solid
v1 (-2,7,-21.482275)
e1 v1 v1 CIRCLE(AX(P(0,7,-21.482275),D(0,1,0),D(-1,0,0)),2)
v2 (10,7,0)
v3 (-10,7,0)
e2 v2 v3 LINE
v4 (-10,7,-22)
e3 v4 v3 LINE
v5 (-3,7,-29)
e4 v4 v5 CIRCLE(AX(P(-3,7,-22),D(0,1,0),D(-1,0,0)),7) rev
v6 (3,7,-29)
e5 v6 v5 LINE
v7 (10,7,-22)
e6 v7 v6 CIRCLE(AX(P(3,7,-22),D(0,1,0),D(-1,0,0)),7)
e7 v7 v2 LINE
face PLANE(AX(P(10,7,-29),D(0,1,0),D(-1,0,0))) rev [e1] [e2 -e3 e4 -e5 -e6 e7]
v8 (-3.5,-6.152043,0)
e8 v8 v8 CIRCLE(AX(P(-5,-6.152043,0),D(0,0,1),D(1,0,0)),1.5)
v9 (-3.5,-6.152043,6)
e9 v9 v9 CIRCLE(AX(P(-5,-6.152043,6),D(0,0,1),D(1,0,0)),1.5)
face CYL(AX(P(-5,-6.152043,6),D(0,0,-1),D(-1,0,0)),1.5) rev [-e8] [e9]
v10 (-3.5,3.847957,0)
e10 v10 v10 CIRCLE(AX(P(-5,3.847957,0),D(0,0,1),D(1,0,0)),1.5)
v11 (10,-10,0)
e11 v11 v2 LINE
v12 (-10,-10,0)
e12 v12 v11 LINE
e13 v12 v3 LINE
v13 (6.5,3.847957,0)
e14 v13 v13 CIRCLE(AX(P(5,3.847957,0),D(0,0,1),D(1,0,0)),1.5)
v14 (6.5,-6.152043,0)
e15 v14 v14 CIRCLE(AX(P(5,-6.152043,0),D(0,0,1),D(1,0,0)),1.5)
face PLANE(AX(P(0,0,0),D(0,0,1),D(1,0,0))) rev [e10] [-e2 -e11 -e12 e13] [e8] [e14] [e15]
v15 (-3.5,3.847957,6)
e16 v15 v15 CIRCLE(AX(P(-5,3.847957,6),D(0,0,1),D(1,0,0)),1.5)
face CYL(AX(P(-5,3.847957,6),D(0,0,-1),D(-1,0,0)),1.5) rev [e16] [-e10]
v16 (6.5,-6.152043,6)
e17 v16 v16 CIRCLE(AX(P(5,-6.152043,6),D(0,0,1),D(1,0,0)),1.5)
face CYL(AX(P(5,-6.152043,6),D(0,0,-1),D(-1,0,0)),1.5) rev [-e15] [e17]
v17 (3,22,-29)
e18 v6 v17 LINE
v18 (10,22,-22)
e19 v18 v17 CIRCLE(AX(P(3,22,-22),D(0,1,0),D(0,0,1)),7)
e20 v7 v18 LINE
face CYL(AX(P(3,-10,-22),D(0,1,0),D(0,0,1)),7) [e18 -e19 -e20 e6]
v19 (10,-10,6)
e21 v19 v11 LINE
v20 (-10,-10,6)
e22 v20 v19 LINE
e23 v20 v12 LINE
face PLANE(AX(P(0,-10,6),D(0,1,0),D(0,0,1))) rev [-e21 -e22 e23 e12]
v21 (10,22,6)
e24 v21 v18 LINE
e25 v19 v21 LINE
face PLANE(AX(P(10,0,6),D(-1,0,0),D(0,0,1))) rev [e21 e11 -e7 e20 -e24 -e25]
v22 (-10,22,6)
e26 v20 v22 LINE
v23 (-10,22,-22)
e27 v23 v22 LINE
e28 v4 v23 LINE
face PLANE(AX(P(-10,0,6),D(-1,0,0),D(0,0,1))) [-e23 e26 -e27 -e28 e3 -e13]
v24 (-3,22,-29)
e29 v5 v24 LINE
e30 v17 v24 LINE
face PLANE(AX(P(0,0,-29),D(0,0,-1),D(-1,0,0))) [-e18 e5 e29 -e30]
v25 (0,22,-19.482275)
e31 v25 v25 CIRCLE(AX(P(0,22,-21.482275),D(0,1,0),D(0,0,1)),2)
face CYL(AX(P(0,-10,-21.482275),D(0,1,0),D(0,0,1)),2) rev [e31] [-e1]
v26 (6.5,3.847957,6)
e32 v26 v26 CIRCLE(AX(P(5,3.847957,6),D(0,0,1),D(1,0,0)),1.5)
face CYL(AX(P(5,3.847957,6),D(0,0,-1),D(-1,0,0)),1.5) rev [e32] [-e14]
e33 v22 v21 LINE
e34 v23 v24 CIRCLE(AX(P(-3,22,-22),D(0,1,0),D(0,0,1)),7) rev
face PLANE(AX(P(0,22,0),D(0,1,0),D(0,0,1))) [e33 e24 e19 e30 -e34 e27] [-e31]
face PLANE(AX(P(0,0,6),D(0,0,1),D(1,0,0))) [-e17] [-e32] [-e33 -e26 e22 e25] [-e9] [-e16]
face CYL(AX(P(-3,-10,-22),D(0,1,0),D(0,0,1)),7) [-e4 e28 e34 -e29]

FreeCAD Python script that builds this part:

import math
import FreeCAD as App
import Part
import Sketcher

V = App.Vector

doc = App.newDocument("Part")
params = doc.addObject("Spreadsheet::Sheet", "Params")
for row, (alias, value) in enumerate([
    ("sketch1_diameter", "3 mm"),
    ("sketch1_width", "20 mm"),
    ("pad1_length", "6 mm"),
    ("sketch2_width", "20 mm"),
    ("sketch2_height", "3 mm"),
    ("pad2_length", "29 mm"),
    ("sketch3_width", "20 mm"),
    ("sketch3_height", "35 mm"),
    ("pad3_length", "12 mm"),
    ("sketch4_radius", "7 mm"),
    ("sketch4_radius2", "2 mm"),
], start=1):
    params.set(f"A{row}", alias)
    params.set(f"B{row}", "=" + value)
    params.setAlias(f"B{row}", alias)

body = doc.addObject("PartDesign::Body", "Body")

# Sketch on XY plane
sketch1 = body.newObject("Sketcher::SketchObject", "Sketch")
sketch1.AttachmentSupport = (doc.getObject("XY_Plane"), [""])
sketch1.MapMode = "FlatFace"
sketch1.addGeometry([
    Part.LineSegment(V(-10, 10, 0), V(-10, -10, 0)),  # 0
    Part.LineSegment(V(-10, -10, 0), V(10, -10, 0)),  # 1
    Part.LineSegment(V(10, -10, 0), V(10, 10, 0)),  # 2
    Part.LineSegment(V(10, 10, 0), V(-10, 10, 0)),  # 3
    Part.Circle(V(-5, -6.2, 0), V(0, 0, 1), 1.5),  # 4
    Part.Circle(V(5, -6.2, 0), V(0, 0, 1), 1.5),  # 5
    Part.Circle(V(-5, 3.8, 0), V(0, 0, 1), 1.5),  # 6
    Part.Circle(V(5, 3.8, 0), V(0, 0, 1), 1.5),  # 7
], False)
sketch1.addConstraint([
    Sketcher.Constraint("Coincident", 0, 2, 1, 1),
    Sketcher.Constraint("Coincident", 1, 2, 2, 1),
    Sketcher.Constraint("Coincident", 2, 2, 3, 1),
    Sketcher.Constraint("Coincident", 3, 2, 0, 1),
    Sketcher.Constraint("Vertical", 0),
    Sketcher.Constraint("Horizontal", 1),
    Sketcher.Constraint("Vertical", 2),
    Sketcher.Constraint("Horizontal", 3),
    Sketcher.Constraint("Equal", 4, 5),
    Sketcher.Constraint("Equal", 5, 6),
    Sketcher.Constraint("Equal", 6, 7),
    Sketcher.Constraint("Symmetric", 0, 2, 2, 2, -1, 1),
    Sketcher.Constraint("Symmetric", 4, 3, 5, 3, -2),
    Sketcher.Constraint("Symmetric", 6, 3, 7, 3, -2),
    Sketcher.Constraint("Vertical", 4, 3, 6, 3),
    Sketcher.Constraint("Equal", 3, 0),
    Sketcher.Constraint("Diameter", 4, 3.0),
    Sketcher.Constraint("DistanceX", 1, 1, 1, 2, 20.0),
    Sketcher.Constraint("DistanceX", 4, 3, -1, 1, 5.0),
    Sketcher.Constraint("DistanceY", 4, 3, 6, 3, 10.0),
    Sketcher.Constraint("DistanceY", 4, 3, -1, 1, 6.152043),
])
sketch1.setExpression("Constraints[16]", "Params.sketch1_diameter")
sketch1.setExpression("Constraints[17]", "Params.sketch1_width")
pad1 = body.newObject("PartDesign::Pad", "Pad")
pad1.Profile = sketch1
pad1.setExpression("Length", "Params.pad1_length")

# Sketch on XY plane
sketch2 = body.newObject("Sketcher::SketchObject", "Sketch001")
sketch2.AttachmentSupport = (doc.getObject("XY_Plane"), [""])
sketch2.MapMode = "FlatFace"
sketch2.addGeometry([
    Part.LineSegment(V(10, 10, 0), V(10, 7, 0)),
    Part.LineSegment(V(10, 7, 0), V(-10, 7, 0)),
    Part.LineSegment(V(-10, 7, 0), V(-10, 10, 0)),
    Part.LineSegment(V(-10, 10, 0), V(10, 10, 0)),
], False)
sketch2.addConstraint([
    Sketcher.Constraint("Coincident", 0, 2, 1, 1),
    Sketcher.Constraint("Coincident", 1, 2, 2, 1),
    Sketcher.Constraint("Coincident", 2, 2, 3, 1),
    Sketcher.Constraint("Coincident", 3, 2, 0, 1),
    Sketcher.Constraint("Vertical", 0),
    Sketcher.Constraint("Horizontal", 1),
    Sketcher.Constraint("Vertical", 2),
    Sketcher.Constraint("Horizontal", 3),
    Sketcher.Constraint("DistanceX", 1, 2, 1, 1, 20.0),
    Sketcher.Constraint("DistanceY", 0, 2, 0, 1, 3.0),
    Sketcher.Constraint("DistanceX", -1, 1, 0, 2, 10.0),
    Sketcher.Constraint("DistanceY", -1, 1, 0, 2, 7.0),
])
sketch2.setExpression("Constraints[8]", "Params.sketch2_width")
sketch2.setExpression("Constraints[9]", "Params.sketch2_height")
pad2 = body.newObject("PartDesign::Pad", "Pad001")
pad2.Profile = sketch2
pad2.setExpression("Length", "Params.pad2_length")
pad2.Reversed = True

# Sketch on XZ plane
sketch3 = body.newObject("Sketcher::SketchObject", "Sketch002")
sketch3.AttachmentSupport = (doc.getObject("XZ_Plane"), [""])
sketch3.MapMode = "FlatFace"
sketch3.AttachmentOffset = App.Placement(V(0, 0, -10), App.Rotation())
sketch3.addGeometry([
    Part.LineSegment(V(-10, -29, 0), V(-10, 6, 0)),
    Part.LineSegment(V(-10, 6, 0), V(10, 6, 0)),
    Part.LineSegment(V(10, 6, 0), V(10, -29, 0)),
    Part.LineSegment(V(10, -29, 0), V(-10, -29, 0)),
], False)
sketch3.addConstraint([
    Sketcher.Constraint("Coincident", 0, 2, 1, 1),
    Sketcher.Constraint("Coincident", 1, 2, 2, 1),
    Sketcher.Constraint("Coincident", 2, 2, 3, 1),
    Sketcher.Constraint("Coincident", 3, 2, 0, 1),
    Sketcher.Constraint("Vertical", 0),
    Sketcher.Constraint("Horizontal", 1),
    Sketcher.Constraint("Vertical", 2),
    Sketcher.Constraint("Horizontal", 3),
    Sketcher.Constraint("DistanceX", 1, 1, 1, 2, 20.0),
    Sketcher.Constraint("DistanceY", 0, 1, 0, 2, 35.0),
    Sketcher.Constraint("DistanceX", 0, 2, -1, 1, 10.0),
    Sketcher.Constraint("DistanceY", -1, 1, 0, 2, 6.0),
])
sketch3.setExpression("Constraints[8]", "Params.sketch3_width")
sketch3.setExpression("Constraints[9]", "Params.sketch3_height")
pad3 = body.newObject("PartDesign::Pad", "Pad002")
pad3.Profile = sketch3
pad3.setExpression("Length", "Params.pad3_length")
pad3.Reversed = True

# Sketch on XZ plane
sketch4 = body.newObject("Sketcher::SketchObject", "Sketch003")
sketch4.AttachmentSupport = (doc.getObject("XZ_Plane"), [""])
sketch4.MapMode = "FlatFace"
sketch4.AttachmentOffset = App.Placement(V(0, 0, -22), App.Rotation())
sketch4.addGeometry([
    Part.LineSegment(V(-10, -29, 0), V(-10, -22, 0)),  # 0
    Part.ArcOfCircle(Part.Circle(V(-3, -22, 0), V(0, 0, 1), 7), math.radians(-180), math.radians(-90)),  # 1
    Part.LineSegment(V(-3, -29, 0), V(-10, -29, 0)),  # 2
    Part.ArcOfCircle(Part.Circle(V(0, -21.5, 0), V(0, 0, 1), 2), math.radians(90), math.radians(270)),  # 3
    Part.ArcOfCircle(Part.Circle(V(0, -21.5, 0), V(0, 0, 1), 2), math.radians(0), math.radians(90)),  # 4
    Part.ArcOfCircle(Part.Circle(V(0, -21.5, 0), V(0, 0, 1), 2), math.radians(-90), math.radians(0)),  # 5
    Part.ArcOfCircle(Part.Circle(V(3, -22, 0), V(0, 0, 1), 7), math.radians(-90), math.radians(0)),  # 6
    Part.LineSegment(V(10, -22, 0), V(10, -29, 0)),  # 7
    Part.LineSegment(V(10, -29, 0), V(3, -29, 0)),  # 8
], False)
sketch4.addConstraint([
    Sketcher.Constraint("Tangent", 0, 2, 1, 1),
    Sketcher.Constraint("Tangent", 1, 2, 2, 1),
    Sketcher.Constraint("Coincident", 2, 2, 0, 1),
    Sketcher.Constraint("Tangent", 3, 1, 4, 2),
    Sketcher.Constraint("Tangent", 4, 1, 5, 2),
    Sketcher.Constraint("Tangent", 5, 1, 3, 2),
    Sketcher.Constraint("Tangent", 6, 2, 7, 1),
    Sketcher.Constraint("Coincident", 7, 2, 8, 1),
    Sketcher.Constraint("Tangent", 8, 2, 6, 1),
    Sketcher.Constraint("Vertical", 0),
    Sketcher.Constraint("Horizontal", 2),
    Sketcher.Constraint("Vertical", 7),
    Sketcher.Constraint("Horizontal", 8),
    Sketcher.Constraint("Equal", 1, 6),
    Sketcher.Constraint("Symmetric", 1, 3, 6, 3, -2),
    Sketcher.Constraint("PointOnObject", 3, 3, -2),
    Sketcher.Constraint("PointOnObject", 3, 1, -2),
    Sketcher.Constraint("PointOnObject", 5, 1, -2),
    Sketcher.Constraint("Horizontal", 5, 3, 4, 1),
    Sketcher.Constraint("Radius", 1, 7.0),
    Sketcher.Constraint("Radius", 3, 2.0),
    Sketcher.Constraint("DistanceX", 1, 3, -1, 1, 3.0),
    Sketcher.Constraint("DistanceY", 1, 3, -1, 1, 22.0),
    Sketcher.Constraint("DistanceY", 3, 3, -1, 1, 21.482275),
])
sketch4.setExpression("Constraints[19]", "Params.sketch4_radius")
sketch4.setExpression("Constraints[20]", "Params.sketch4_radius2")
pocket1 = body.newObject("PartDesign::Pocket", "Pocket")
pocket1.Profile = sketch4
pocket1.Type = "ThroughAll"
pocket1.Reversed = True

doc.recompute()
